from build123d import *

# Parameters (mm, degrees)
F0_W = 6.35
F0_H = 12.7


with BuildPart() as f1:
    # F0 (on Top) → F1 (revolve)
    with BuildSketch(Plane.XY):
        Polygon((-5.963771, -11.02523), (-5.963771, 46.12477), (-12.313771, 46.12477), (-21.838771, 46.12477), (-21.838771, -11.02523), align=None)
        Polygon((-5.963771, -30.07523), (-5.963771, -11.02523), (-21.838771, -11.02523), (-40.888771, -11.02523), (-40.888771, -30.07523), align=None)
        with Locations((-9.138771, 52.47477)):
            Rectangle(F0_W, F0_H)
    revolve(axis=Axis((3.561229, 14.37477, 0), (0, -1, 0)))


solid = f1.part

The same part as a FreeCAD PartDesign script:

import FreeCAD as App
import Part
import Sketcher

V = App.Vector
Q = App.Units.Quantity


def add_polygon(sketch, points):
    """Adds a closed chain of lines whose ends are joined by coincident constraints."""
    first, n = sketch.GeometryCount, len(points)
    for a, b in zip(points, points[1:] + points[:1]):
        sketch.addGeometry(Part.LineSegment(App.Vector(*a, 0), App.Vector(*b, 0)), False)
    for i in range(n):
        sketch.addConstraint(Sketcher.Constraint("Coincident", first + i, 2, first + (i + 1) % n, 1))

doc = App.newDocument("Part")
body = doc.addObject("PartDesign::Body", "Body")

sketch1 = body.newObject("Sketcher::SketchObject", "Sketch")
sketch1.AttachmentSupport = (doc.getObject("XY_Plane"), [""])
sketch1.MapMode = "FlatFace"
add_polygon(sketch1, [(-12, 46), (-22, 46), (-22, -11), (-41, -11), (-41, -30), (-6, -30), (-6, 59), (-12, 59)])
sketch1.addGeometry(Part.LineSegment(V(4, 59, 0), V(4, -30, 0)), True)
sketch1.addConstraint([
    Sketcher.Constraint("Horizontal", 0),
    Sketcher.Constraint("Vertical", 1),
    Sketcher.Constraint("Horizontal", 2),
    Sketcher.Constraint("Vertical", 3),
    Sketcher.Constraint("Horizontal", 4),
    Sketcher.Constraint("Vertical", 5),
    Sketcher.Constraint("Horizontal", 6),
    Sketcher.Constraint("Vertical", 7),
    Sketcher.Constraint("Vertical", 8),
    Sketcher.Constraint("Horizontal", 6, 2, 8, 1),
    Sketcher.Constraint("Horizontal", 4, 2, 8, 2),
    Sketcher.Constraint("Equal", 2, 3),
    Sketcher.Constraint("DistanceY", 5, 1, 5, 2, Q("3.5 in")),
    Sketcher.Constraint("DistanceY", 7, 2, 7, 1, Q("0.5 in")),
    Sketcher.Constraint("DistanceX", 0, 2, 8, 1, Q("1 in")),
    Sketcher.Constraint("DistanceX", 2, 2, 2, 1, Q("0.75 in")),
    Sketcher.Constraint("DistanceX", 6, 2, 6, 1, Q("0.25 in")),
    Sketcher.Constraint("DistanceX", 0, 2, 0, 1, Q("0.375 in")),
    Sketcher.Constraint("DistanceX", 0, 2, -1, 1, Q("21.838771 mm")),
    Sketcher.Constraint("DistanceY", -1, 1, 0, 2, Q("46.12477 mm")),
])
revolution = body.newObject("PartDesign::Revolution", "Revolution")
revolution.Profile = sketch1
revolution.ReferenceAxis = (sketch1, ["Axis0"])
revolution.Angle = 360

doc.recompute()
